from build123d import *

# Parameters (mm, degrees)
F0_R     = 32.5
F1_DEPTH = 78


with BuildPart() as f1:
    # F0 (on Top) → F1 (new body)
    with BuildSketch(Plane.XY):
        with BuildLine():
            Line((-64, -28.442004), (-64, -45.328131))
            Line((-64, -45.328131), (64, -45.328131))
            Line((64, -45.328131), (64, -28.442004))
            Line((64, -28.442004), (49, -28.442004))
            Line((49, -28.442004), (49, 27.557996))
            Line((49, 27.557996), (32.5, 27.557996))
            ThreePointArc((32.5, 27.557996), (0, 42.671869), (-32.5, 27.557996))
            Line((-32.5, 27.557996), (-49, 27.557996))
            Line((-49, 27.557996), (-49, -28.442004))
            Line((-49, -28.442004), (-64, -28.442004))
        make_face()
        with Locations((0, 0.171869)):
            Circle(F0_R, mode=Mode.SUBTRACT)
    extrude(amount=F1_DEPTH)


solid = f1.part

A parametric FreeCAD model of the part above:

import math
import FreeCAD as App
import Part
import Sketcher
from FreeCAD import Vector
Q = App.Units.Quantity

doc = App.newDocument("Part")
body = doc.addObject("PartDesign::Body", "Body")

sketch1 = body.newObject("Sketcher::SketchObject", "Sketch")
sketch1.AttachmentSupport = (doc.getObject("XY_Plane"), [""])
sketch1.MapMode = "FlatFace"
sketch1.addGeometry(Part.LineSegment(Vector(-64, -28, 0), Vector(-64, -45, 0)), False)
sketch1.addGeometry(Part.LineSegment(Vector(-64, -45, 0), Vector(64, -45, 0)), False)
sketch1.addGeometry(Part.LineSegment(Vector(64, -45, 0), Vector(64, -28, 0)), False)
sketch1.addGeometry(Part.LineSegment(Vector(64, -28, 0), Vector(49, -28, 0)), False)
sketch1.addGeometry(Part.LineSegment(Vector(49, -28, 0), Vector(49, 28, 0)), False)
sketch1.addGeometry(Part.LineSegment(Vector(49, 28, 0), Vector(32, 28, 0)), False)
sketch1.addGeometry(Part.ArcOfCircle(Part.Circle(Vector(0, 0, 0), Vector(0, 0, 1), 42), math.radians(40), math.radians(140)), False)
sketch1.addGeometry(Part.LineSegment(Vector(-32, 28, 0), Vector(-49, 28, 0)), False)
sketch1.addGeometry(Part.LineSegment(Vector(-49, 28, 0), Vector(-49, -28, 0)), False)
sketch1.addGeometry(Part.LineSegment(Vector(-49, -28, 0), Vector(-64, -28, 0)), False)
sketch1.addGeometry(Part.Circle(Vector(0, 0, 0), Vector(0, 0, 1), 32), False)
sketch1.addConstraint(Sketcher.Constraint("Coincident", 0, 2, 1, 1))
sketch1.addConstraint(Sketcher.Constraint("Coincident", 1, 2, 2, 1))
sketch1.addConstraint(Sketcher.Constraint("Coincident", 2, 2, 3, 1))
sketch1.addConstraint(Sketcher.Constraint("Coincident", 3, 2, 4, 1))
sketch1.addConstraint(Sketcher.Constraint("Coincident", 4, 2, 5, 1))
sketch1.addConstraint(Sketcher.Constraint("Coincident", 5, 2, 6, 1))
sketch1.addConstraint(Sketcher.Constraint("Coincident", 6, 2, 7, 1))
sketch1.addConstraint(Sketcher.Constraint("Coincident", 7, 2, 8, 1))
sketch1.addConstraint(Sketcher.Constraint("Coincident", 8, 2, 9, 1))
sketch1.addConstraint(Sketcher.Constraint("Coincident", 9, 2, 0, 1))
sketch1.addConstraint(Sketcher.Constraint("Vertical", 0))
sketch1.addConstraint(Sketcher.Constraint("Horizontal", 1))
sketch1.addConstraint(Sketcher.Constraint("Vertical", 2))
sketch1.addConstraint(Sketcher.Constraint("Horizontal", 3))
sketch1.addConstraint(Sketcher.Constraint("Vertical", 4))
sketch1.addConstraint(Sketcher.Constraint("Horizontal", 5))
sketch1.addConstraint(Sketcher.Constraint("Horizontal", 7))
sketch1.addConstraint(Sketcher.Constraint("Vertical", 8))
sketch1.addConstraint(Sketcher.Constraint("Horizontal", 9))
sketch1.addConstraint(Sketcher.Constraint("Coincident", 10, 3, 6, 3))
sketch1.addConstraint(Sketcher.Constraint("Symmetric", 5, 2, 6, 2, -2))
sketch1.addConstraint(Sketcher.Constraint("Symmetric", 3, 2, 8, 2, -2))
sketch1.addConstraint(Sketcher.Constraint("Equal", 3, 9))
sketch1.addConstraint(Sketcher.Constraint("Diameter", 10, Q("65 mm")))
sketch1.addConstraint(Sketcher.Constraint("Radius", 6, Q("42.499998 mm")))
sketch1.addConstraint(Sketcher.Constraint("DistanceX", 1, 1, 1, 2, Q("128 mm")))
sketch1.addConstraint(Sketcher.Constraint("DistanceX", 3, 2, 3, 1, Q("15 mm")))
sketch1.addConstraint(Sketcher.Constraint("DistanceY", 4, 1, 4, 2, Q("56 mm")))
sketch1.addConstraint(Sketcher.Constraint("DistanceX", 5, 2, 5, 1, Q("16.5 mm")))
sketch1.addConstraint(Sketcher.Constraint("DistanceY", 0, 2, 10, 3, Q("45.5 mm")))
sketch1.addConstraint(Sketcher.Constraint("DistanceY", -1, 1, 6, 3, Q("0.171871 mm")))
pad1 = body.newObject("PartDesign::Pad", "Pad")
pad1.Profile = sketch1
pad1.Length = 78

doc.recompute()
